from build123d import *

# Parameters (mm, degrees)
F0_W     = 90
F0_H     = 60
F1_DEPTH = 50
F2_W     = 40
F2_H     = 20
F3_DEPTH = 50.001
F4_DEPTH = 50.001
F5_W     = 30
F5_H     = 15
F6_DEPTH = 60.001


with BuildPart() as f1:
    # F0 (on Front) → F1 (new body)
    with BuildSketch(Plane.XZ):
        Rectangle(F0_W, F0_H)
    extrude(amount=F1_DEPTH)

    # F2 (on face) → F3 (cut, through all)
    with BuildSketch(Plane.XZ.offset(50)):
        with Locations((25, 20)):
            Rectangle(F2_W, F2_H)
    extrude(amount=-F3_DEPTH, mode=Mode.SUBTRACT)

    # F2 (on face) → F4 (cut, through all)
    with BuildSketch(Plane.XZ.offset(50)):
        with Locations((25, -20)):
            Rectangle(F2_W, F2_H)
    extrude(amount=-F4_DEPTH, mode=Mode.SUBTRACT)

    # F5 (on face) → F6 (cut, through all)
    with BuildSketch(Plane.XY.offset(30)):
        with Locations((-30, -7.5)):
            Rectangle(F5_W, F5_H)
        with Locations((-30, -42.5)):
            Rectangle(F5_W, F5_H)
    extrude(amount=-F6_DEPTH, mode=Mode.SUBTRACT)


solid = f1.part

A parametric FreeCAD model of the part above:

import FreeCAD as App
import Part
import Sketcher

V = App.Vector


def add_polygon(sketch, points):
    """Adds a closed chain of lines whose ends are joined by coincident constraints."""
    first, n = sketch.GeometryCount, len(points)
    for a, b in zip(points, points[1:] + points[:1]):
        sketch.addGeometry(Part.LineSegment(App.Vector(*a, 0), App.Vector(*b, 0)), False)
    for i in range(n):
        sketch.addConstraint(Sketcher.Constraint("Coincident", first + i, 2, first + (i + 1) % n, 1))

doc = App.newDocument("Part")
body = doc.addObject("PartDesign::Body", "Body")

# Sketch on XZ plane
sketch1 = body.newObject("Sketcher::SketchObject", "Sketch")
sketch1.AttachmentSupport = (doc.getObject("XZ_Plane"), [""])
sketch1.MapMode = "FlatFace"
add_polygon(sketch1, [(-45, 30), (-45, -30), (45, -30), (45, 30)])  # lines 0-3
sketch1.addConstraint(Sketcher.Constraint("Vertical", 0))
sketch1.addConstraint(Sketcher.Constraint("Horizontal", 1))
sketch1.addConstraint(Sketcher.Constraint("Vertical", 2))
sketch1.addConstraint(Sketcher.Constraint("Horizontal", 3))
sketch1.addConstraint(Sketcher.Constraint("Symmetric", 0, 2, 2, 2, -1, 1))
sketch1.addConstraint(Sketcher.Constraint("DistanceX", 1, 1, 1, 2, 90.0))
sketch1.addConstraint(Sketcher.Constraint("DistanceY", 0, 2, 0, 1, 60.0))
pad1 = body.newObject("PartDesign::Pad", "Pad")
pad1.Profile = sketch1
pad1.Length = 50

# Sketch on XZ plane
sketch2 = body.newObject("Sketcher::SketchObject", "Sketch001")
sketch2.AttachmentSupport = (doc.getObject("XZ_Plane"), [""])
sketch2.MapMode = "FlatFace"
sketch2.AttachmentOffset = App.Placement(V(0, 0, 50), App.Rotation())
add_polygon(sketch2, [(5, 30), (5, 10), (45, 10), (45, 30)])  # lines 0-3
sketch2.addConstraint(Sketcher.Constraint("Vertical", 0))
sketch2.addConstraint(Sketcher.Constraint("Horizontal", 1))
sketch2.addConstraint(Sketcher.Constraint("Vertical", 2))
sketch2.addConstraint(Sketcher.Constraint("Horizontal", 3))
sketch2.addConstraint(Sketcher.Constraint("DistanceX", 1, 1, 1, 2, 40.0))
sketch2.addConstraint(Sketcher.Constraint("DistanceY", 0, 2, 0, 1, 20.0))
sketch2.addConstraint(Sketcher.Constraint("DistanceX", -1, 1, 0, 2, 5.0))
sketch2.addConstraint(Sketcher.Constraint("DistanceY", -1, 1, 0, 2, 10.0))
pocket1 = body.newObject("PartDesign::Pocket", "Pocket")
pocket1.Profile = sketch2
pocket1.Type = "ThroughAll"

# Sketch on XZ plane
sketch3 = body.newObject("Sketcher::SketchObject", "Sketch002")
sketch3.AttachmentSupport = (doc.getObject("XZ_Plane"), [""])
sketch3.MapMode = "FlatFace"
sketch3.AttachmentOffset = App.Placement(V(0, 0, 50), App.Rotation())
add_polygon(sketch3, [(5, -10), (5, -30), (45, -30), (45, -10)])  # lines 0-3
sketch3.addConstraint(Sketcher.Constraint("Vertical", 0))
sketch3.addConstraint(Sketcher.Constraint("Horizontal", 1))
sketch3.addConstraint(Sketcher.Constraint("Vertical", 2))
sketch3.addConstraint(Sketcher.Constraint("Horizontal", 3))
sketch3.addConstraint(Sketcher.Constraint("DistanceX", 1, 1, 1, 2, 40.0))
sketch3.addConstraint(Sketcher.Constraint("DistanceY", 0, 2, 0, 1, 20.0))
sketch3.addConstraint(Sketcher.Constraint("DistanceX", -1, 1, 0, 2, 5.0))
sketch3.addConstraint(Sketcher.Constraint("DistanceY", 0, 2, -1, 1, 30.0))
pocket2 = body.newObject("PartDesign::Pocket", "Pocket001")
pocket2.Profile = sketch3
pocket2.Type = "ThroughAll"

# Sketch on XY plane
sketch4 = body.newObject("Sketcher::SketchObject", "Sketch003")
sketch4.AttachmentSupport = (doc.getObject("XY_Plane"), [""])
sketch4.MapMode = "FlatFace"
sketch4.AttachmentOffset = App.Placement(V(0, 0, 30), App.Rotation())
add_polygon(sketch4, [(-45, 0), (-45, -15), (-15, -15), (-15, 0)])  # lines 0-3
add_polygon(sketch4, [(-45, -35), (-45, -50), (-15, -50), (-15, -35)])  # lines 4-7
sketch4.addConstraint(Sketcher.Constraint("Vertical", 0))
sketch4.addConstraint(Sketcher.Constraint("Horizontal", 1))
sketch4.addConstraint(Sketcher.Constraint("Vertical", 2))
sketch4.addConstraint(Sketcher.Constraint("Horizontal", 3))
sketch4.addConstraint(Sketcher.Constraint("Vertical", 4))
sketch4.addConstraint(Sketcher.Constraint("Horizontal", 5))
sketch4.addConstraint(Sketcher.Constraint("Vertical", 6))
sketch4.addConstraint(Sketcher.Constraint("Horizontal", 7))
sketch4.addConstraint(Sketcher.Constraint("PointOnObject", 2, 2, -1))
sketch4.addConstraint(Sketcher.Constraint("Vertical", 3, 2, 4, 2))
sketch4.addConstraint(Sketcher.Constraint("Vertical", 2, 2, 5, 2))
sketch4.addConstraint(Sketcher.Constraint("Equal", 2, 4))
sketch4.addConstraint(Sketcher.Constraint("DistanceX", 1, 1, 1, 2, 30.0))
sketch4.addConstraint(Sketcher.Constraint("DistanceY", 0, 2, 0, 1, 15.0))
sketch4.addConstraint(Sketcher.Constraint("DistanceX", 0, 2, -1, 1, 45.0))
sketch4.addConstraint(Sketcher.Constraint("DistanceY", 4, 2, -1, 1, 50.0))
pocket3 = body.newObject("PartDesign::Pocket", "Pocket002")
pocket3.Profile = sketch4
pocket3.Type = "ThroughAll"

doc.recompute()
